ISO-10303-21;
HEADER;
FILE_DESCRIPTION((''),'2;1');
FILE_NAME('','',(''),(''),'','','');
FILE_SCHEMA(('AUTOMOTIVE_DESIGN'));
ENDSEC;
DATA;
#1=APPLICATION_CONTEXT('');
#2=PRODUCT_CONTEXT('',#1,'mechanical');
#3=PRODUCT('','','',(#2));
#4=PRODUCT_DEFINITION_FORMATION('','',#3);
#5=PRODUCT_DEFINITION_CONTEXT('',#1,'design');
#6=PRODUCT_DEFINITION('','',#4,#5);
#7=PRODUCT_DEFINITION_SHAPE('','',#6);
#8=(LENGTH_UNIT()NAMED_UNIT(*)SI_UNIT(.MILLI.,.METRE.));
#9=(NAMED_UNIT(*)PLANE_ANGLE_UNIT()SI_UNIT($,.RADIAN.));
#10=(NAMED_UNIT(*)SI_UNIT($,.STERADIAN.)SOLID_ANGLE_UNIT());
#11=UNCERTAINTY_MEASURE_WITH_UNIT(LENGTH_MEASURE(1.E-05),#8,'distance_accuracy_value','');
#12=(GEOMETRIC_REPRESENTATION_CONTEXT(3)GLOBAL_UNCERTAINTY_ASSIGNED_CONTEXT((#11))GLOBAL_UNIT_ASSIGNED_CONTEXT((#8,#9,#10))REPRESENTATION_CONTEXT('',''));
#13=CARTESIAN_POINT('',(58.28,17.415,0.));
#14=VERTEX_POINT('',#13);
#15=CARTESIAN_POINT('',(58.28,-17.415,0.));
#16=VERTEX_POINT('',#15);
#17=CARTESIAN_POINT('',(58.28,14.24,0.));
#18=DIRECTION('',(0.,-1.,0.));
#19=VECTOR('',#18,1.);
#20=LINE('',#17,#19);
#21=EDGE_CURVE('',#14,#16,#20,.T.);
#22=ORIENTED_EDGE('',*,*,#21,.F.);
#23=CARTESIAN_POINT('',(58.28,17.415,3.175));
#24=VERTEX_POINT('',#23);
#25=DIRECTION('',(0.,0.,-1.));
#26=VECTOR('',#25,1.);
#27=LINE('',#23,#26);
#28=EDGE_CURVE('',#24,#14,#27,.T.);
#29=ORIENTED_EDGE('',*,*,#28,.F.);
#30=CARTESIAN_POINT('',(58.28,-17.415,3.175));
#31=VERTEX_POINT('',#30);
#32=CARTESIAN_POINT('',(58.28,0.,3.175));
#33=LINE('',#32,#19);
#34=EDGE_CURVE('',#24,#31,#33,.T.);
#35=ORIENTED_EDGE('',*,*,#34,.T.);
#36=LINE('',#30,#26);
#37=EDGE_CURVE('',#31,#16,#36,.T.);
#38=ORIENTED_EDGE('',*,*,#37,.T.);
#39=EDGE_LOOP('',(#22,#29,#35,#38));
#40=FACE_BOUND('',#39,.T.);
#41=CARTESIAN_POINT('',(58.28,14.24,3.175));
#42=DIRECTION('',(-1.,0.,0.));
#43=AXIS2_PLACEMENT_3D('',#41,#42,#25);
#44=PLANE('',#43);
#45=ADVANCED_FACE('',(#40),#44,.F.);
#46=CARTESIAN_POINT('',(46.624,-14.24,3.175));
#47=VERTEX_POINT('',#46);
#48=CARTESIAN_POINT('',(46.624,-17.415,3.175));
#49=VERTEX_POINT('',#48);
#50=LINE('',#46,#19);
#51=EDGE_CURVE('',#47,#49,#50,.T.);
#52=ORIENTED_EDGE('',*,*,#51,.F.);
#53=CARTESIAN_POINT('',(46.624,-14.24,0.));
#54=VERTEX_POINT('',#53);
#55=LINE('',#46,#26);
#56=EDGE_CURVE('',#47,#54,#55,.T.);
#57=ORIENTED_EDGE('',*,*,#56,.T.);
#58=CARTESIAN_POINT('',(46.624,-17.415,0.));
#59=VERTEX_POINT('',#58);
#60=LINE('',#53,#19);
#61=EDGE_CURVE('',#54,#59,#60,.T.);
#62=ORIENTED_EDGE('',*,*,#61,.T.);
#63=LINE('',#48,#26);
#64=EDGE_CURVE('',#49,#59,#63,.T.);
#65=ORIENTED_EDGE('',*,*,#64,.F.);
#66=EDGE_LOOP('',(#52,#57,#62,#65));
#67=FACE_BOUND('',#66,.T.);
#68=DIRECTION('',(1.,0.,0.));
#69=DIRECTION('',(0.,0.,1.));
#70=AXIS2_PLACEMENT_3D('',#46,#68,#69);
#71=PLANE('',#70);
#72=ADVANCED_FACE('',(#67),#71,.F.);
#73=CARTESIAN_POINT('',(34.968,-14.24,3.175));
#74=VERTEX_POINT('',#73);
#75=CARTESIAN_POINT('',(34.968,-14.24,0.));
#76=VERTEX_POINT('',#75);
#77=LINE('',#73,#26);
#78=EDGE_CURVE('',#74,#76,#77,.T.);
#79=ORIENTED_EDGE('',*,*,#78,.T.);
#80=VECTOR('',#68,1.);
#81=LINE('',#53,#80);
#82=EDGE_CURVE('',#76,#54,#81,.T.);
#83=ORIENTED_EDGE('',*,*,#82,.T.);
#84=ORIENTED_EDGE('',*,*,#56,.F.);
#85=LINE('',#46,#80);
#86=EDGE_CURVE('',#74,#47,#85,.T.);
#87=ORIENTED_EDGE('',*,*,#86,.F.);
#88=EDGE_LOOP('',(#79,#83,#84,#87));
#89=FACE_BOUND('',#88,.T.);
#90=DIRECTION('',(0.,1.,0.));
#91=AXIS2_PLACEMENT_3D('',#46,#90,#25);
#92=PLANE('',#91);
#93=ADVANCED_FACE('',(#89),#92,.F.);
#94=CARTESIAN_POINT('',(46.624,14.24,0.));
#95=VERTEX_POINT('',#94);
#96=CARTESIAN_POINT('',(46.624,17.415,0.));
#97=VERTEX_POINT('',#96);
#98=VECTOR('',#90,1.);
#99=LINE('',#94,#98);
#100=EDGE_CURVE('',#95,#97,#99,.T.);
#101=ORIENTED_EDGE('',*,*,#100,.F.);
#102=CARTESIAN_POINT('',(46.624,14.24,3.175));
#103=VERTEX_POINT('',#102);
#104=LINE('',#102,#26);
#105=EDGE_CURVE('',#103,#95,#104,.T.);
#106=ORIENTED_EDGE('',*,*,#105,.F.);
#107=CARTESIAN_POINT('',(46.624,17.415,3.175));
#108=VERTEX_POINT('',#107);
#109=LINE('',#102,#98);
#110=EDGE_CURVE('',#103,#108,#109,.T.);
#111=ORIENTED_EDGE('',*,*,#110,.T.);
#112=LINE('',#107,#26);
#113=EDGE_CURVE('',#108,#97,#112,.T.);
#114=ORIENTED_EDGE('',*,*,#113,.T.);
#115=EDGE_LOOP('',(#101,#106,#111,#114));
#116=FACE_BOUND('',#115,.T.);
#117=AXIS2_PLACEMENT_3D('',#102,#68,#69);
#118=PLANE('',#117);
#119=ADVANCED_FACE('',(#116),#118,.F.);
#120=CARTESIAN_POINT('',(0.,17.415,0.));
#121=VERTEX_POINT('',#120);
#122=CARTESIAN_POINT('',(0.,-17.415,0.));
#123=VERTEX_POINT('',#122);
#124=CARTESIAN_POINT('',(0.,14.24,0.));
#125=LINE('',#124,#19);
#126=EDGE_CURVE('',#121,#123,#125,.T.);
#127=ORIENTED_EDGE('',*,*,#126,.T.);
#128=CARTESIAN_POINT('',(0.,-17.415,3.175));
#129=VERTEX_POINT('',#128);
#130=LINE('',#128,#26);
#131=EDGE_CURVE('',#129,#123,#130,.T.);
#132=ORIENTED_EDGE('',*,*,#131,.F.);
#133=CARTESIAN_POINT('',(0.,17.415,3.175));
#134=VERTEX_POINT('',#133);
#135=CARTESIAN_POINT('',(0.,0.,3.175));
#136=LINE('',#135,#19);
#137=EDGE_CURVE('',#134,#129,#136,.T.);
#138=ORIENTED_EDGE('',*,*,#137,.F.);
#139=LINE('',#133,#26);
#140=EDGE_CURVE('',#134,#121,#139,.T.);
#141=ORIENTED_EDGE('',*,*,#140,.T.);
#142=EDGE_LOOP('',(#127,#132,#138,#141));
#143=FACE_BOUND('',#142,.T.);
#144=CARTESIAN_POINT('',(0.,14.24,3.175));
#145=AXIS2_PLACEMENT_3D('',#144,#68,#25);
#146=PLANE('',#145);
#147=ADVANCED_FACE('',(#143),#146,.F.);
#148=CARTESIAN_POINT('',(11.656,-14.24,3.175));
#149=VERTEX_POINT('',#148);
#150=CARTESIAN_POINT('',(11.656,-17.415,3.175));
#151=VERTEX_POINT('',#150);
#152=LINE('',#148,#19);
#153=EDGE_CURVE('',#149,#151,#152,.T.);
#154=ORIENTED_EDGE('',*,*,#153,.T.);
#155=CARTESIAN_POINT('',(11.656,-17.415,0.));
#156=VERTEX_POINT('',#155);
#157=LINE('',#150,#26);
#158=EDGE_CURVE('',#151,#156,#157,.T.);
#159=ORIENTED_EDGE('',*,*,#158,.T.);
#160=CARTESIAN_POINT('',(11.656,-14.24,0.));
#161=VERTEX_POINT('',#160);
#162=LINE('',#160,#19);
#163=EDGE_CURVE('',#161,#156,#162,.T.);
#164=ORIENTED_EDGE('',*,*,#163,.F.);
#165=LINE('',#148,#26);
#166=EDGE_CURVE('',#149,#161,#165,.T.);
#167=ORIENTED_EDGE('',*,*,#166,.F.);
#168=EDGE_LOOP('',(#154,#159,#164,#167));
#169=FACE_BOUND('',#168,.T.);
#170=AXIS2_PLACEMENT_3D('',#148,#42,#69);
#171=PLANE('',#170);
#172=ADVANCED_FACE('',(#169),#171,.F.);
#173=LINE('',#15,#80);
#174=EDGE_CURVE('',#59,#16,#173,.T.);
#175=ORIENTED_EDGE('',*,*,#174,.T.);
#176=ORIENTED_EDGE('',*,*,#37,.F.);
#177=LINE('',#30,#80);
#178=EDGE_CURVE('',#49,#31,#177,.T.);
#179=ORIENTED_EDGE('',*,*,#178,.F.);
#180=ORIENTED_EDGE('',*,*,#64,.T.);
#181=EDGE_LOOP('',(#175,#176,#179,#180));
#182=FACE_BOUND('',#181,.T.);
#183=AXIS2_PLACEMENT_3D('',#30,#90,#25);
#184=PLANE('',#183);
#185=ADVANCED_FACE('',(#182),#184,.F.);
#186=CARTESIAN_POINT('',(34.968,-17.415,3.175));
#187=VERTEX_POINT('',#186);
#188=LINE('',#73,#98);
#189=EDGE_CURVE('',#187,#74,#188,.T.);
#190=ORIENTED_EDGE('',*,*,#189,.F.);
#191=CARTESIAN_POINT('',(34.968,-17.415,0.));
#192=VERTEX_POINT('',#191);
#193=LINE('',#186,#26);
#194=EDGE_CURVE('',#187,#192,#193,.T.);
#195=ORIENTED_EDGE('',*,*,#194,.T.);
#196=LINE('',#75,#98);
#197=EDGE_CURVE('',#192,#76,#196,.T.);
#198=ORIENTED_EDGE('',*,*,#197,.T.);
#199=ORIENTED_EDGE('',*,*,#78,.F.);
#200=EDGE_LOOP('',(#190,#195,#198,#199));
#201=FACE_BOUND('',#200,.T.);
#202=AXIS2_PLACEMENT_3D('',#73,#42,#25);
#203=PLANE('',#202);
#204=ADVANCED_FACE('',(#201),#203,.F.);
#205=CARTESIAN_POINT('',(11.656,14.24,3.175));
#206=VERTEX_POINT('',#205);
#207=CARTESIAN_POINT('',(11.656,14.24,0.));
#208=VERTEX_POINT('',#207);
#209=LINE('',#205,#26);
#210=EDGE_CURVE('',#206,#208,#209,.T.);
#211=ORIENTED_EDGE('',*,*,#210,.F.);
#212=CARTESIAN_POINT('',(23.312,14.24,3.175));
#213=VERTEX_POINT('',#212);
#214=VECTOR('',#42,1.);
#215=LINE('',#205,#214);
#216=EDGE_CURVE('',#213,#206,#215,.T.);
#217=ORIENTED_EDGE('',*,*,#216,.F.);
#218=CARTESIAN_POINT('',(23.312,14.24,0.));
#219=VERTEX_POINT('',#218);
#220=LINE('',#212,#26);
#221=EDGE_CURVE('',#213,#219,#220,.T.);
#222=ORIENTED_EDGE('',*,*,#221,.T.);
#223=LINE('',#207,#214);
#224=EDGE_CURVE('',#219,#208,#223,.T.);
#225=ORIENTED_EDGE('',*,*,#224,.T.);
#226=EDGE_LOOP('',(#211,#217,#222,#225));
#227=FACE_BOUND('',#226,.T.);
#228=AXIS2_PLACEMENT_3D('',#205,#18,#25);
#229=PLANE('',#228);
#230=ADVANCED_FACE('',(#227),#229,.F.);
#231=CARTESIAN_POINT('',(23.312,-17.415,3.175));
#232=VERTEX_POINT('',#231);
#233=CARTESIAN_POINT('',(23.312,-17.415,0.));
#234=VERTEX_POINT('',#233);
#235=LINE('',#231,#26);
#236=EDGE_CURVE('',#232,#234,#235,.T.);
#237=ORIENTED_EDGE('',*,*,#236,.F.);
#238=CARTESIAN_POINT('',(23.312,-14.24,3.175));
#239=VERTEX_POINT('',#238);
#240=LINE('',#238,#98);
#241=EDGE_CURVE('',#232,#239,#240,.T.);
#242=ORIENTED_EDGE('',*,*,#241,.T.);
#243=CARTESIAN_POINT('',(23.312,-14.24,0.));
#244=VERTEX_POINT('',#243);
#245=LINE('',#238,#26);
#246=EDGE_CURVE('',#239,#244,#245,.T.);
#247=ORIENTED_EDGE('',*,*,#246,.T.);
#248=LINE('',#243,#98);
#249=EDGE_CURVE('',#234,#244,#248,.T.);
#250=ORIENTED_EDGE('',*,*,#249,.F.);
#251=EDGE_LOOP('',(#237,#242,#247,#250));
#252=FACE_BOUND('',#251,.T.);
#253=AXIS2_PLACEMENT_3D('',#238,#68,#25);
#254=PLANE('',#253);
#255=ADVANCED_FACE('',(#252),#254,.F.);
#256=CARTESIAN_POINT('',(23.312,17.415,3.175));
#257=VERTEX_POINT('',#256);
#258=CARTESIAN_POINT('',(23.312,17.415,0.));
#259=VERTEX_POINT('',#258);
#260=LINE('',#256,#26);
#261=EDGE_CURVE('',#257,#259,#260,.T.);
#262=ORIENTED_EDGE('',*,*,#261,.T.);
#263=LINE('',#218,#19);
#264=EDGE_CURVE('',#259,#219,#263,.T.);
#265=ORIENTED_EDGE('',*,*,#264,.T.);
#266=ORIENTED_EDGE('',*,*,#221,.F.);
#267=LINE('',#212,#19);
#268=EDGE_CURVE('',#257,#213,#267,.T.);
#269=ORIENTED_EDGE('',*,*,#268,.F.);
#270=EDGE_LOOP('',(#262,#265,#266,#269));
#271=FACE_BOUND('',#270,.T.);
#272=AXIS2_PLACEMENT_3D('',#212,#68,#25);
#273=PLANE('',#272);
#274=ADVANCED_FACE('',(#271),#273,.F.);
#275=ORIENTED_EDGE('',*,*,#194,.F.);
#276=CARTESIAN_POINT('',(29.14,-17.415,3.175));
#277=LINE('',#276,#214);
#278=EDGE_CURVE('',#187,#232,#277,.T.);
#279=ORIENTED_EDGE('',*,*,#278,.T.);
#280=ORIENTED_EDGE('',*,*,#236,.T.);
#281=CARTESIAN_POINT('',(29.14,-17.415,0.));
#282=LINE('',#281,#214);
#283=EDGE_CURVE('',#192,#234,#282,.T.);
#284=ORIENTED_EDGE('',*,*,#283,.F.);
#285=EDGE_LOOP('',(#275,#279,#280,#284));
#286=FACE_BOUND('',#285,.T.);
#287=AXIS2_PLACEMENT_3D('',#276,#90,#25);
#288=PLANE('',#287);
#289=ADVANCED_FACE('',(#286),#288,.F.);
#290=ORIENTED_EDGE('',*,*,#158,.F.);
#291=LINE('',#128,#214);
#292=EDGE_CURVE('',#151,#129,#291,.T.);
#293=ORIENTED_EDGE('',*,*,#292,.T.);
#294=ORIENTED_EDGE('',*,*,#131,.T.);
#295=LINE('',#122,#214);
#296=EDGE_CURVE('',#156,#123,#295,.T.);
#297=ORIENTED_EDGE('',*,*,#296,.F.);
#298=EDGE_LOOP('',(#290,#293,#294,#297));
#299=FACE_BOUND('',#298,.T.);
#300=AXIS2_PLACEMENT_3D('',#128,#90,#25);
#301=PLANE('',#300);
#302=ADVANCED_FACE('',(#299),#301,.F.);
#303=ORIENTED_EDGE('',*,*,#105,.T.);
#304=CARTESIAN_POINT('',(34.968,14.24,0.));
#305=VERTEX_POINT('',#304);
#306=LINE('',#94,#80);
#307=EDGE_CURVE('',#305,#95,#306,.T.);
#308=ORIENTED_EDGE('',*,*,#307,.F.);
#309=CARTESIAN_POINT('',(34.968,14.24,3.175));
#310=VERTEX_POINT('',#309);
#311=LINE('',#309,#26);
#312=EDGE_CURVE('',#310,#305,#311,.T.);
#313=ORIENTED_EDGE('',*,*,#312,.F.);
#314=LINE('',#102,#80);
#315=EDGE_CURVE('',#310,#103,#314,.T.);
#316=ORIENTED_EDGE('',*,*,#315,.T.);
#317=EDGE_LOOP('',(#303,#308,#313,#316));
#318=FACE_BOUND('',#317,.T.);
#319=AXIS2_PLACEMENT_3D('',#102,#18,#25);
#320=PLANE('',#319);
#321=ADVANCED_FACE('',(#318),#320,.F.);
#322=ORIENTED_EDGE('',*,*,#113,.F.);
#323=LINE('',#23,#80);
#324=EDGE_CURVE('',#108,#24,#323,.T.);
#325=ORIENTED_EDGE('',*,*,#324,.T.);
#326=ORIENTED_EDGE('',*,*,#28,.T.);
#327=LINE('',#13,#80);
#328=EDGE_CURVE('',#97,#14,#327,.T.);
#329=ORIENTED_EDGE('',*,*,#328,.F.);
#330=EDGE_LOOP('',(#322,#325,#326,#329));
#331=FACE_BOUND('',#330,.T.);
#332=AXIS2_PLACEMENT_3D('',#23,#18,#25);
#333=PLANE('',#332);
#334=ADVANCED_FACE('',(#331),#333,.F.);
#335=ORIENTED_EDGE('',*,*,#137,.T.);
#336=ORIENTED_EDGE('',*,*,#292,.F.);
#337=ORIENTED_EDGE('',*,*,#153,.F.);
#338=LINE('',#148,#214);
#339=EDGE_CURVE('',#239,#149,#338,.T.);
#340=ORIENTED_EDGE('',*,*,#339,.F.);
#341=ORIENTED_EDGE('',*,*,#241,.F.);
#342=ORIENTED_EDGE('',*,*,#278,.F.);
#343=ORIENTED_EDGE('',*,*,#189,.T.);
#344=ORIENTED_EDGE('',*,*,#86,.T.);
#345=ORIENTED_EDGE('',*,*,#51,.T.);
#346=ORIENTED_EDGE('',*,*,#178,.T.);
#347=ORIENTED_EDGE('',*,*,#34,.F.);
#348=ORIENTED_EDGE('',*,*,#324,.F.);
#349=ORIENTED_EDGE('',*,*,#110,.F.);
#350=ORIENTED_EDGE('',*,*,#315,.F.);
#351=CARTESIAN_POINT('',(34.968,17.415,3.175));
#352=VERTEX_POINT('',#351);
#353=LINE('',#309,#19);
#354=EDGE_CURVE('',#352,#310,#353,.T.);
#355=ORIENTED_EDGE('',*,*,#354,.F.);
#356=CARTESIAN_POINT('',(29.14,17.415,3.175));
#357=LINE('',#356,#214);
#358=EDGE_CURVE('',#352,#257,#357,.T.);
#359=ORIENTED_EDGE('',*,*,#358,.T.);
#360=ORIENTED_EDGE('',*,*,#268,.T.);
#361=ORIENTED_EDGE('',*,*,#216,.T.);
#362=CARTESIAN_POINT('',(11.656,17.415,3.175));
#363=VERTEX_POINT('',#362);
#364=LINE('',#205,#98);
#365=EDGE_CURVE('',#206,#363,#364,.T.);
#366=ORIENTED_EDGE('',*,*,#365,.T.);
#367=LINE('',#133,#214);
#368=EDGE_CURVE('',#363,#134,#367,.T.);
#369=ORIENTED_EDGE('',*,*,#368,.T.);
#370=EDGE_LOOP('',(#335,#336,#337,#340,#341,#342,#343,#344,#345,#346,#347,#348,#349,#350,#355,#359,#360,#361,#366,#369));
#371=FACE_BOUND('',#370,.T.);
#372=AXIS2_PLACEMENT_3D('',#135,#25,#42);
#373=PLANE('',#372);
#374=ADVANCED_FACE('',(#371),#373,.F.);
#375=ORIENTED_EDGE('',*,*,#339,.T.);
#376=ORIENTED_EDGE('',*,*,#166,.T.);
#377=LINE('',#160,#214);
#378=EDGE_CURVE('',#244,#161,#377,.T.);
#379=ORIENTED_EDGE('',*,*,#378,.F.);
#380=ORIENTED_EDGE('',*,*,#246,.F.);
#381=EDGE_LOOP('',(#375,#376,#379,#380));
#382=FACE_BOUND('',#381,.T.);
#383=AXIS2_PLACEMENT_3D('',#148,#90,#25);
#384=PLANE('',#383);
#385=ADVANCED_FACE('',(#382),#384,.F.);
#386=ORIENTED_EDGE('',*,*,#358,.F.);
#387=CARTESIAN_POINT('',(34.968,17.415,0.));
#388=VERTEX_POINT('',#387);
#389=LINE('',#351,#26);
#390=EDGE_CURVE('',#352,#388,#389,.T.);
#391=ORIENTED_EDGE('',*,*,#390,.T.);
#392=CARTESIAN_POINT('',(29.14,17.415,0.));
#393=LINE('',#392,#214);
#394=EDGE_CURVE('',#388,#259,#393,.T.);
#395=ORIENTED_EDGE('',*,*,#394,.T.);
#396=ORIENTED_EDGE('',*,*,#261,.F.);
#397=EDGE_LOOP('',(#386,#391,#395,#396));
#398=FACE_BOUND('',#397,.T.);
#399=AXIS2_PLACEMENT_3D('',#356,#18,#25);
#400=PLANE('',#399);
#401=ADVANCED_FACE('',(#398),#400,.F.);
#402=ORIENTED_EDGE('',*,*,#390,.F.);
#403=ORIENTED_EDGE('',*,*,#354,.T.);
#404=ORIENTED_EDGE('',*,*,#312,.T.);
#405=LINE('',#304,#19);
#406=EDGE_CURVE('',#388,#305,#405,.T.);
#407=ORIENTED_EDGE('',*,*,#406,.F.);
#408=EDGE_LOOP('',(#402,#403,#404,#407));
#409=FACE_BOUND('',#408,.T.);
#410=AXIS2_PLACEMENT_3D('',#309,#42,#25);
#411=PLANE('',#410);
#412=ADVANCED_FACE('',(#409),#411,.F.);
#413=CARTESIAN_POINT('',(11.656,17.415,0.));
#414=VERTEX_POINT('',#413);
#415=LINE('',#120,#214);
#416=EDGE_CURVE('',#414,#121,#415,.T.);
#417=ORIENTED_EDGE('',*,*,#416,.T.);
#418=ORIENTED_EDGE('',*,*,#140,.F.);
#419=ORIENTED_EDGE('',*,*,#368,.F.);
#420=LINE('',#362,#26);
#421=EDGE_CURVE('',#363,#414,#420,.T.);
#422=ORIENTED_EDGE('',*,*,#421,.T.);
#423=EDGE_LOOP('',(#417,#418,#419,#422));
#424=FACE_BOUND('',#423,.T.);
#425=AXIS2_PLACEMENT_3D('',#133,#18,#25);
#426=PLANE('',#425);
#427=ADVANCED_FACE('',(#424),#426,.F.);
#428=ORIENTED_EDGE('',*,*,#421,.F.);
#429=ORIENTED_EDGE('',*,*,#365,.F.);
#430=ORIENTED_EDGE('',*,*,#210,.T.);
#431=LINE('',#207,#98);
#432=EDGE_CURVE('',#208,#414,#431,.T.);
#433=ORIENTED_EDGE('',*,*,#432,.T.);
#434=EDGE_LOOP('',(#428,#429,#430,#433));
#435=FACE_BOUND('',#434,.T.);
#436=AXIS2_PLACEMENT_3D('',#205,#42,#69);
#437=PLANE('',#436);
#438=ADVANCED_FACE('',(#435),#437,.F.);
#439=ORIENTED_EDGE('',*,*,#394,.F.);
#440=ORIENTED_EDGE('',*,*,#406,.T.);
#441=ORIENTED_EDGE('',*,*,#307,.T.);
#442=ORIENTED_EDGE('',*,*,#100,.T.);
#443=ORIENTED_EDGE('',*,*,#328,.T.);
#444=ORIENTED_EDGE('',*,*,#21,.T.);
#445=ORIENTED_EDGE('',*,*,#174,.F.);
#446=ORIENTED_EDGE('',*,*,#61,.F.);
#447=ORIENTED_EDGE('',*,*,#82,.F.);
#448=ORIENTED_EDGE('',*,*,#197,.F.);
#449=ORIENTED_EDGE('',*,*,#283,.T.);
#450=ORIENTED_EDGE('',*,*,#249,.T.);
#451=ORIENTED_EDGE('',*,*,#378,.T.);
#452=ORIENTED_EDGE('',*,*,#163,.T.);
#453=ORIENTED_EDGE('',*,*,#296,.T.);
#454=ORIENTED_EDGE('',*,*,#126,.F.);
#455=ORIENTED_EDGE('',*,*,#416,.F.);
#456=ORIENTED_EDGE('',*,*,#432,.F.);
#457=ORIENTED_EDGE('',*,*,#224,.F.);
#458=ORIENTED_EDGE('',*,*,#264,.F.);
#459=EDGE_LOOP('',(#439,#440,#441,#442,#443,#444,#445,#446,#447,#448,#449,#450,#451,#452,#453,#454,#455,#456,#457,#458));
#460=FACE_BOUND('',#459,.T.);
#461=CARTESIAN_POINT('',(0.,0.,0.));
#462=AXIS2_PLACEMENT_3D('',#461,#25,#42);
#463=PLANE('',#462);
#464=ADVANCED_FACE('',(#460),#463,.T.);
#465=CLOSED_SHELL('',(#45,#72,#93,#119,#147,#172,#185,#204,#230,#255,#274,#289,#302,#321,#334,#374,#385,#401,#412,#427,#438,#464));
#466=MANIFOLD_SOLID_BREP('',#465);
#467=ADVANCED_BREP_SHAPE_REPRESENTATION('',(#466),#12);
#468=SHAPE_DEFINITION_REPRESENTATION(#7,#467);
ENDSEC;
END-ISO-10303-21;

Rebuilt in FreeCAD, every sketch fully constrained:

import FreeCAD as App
import Part
import Sketcher
Q = App.Units.Quantity


def add_polygon(sketch, points):
    """Adds a closed chain of lines whose ends are joined by coincident constraints."""
    first, n = sketch.GeometryCount, len(points)
    for a, b in zip(points, points[1:] + points[:1]):
        sketch.addGeometry(Part.LineSegment(App.Vector(*a, 0), App.Vector(*b, 0)), False)
    for i in range(n):
        sketch.addConstraint(Sketcher.Constraint("Coincident", first + i, 2, first + (i + 1) % n, 1))

doc = App.newDocument("Part")
body = doc.addObject("PartDesign::Body", "Body")

sketch1 = body.newObject("Sketcher::SketchObject", "Sketch")
sketch1.AttachmentSupport = (doc.getObject("XY_Plane"), [""])
sketch1.MapMode = "FlatFace"
add_polygon(sketch1, [(0, 0), (29.1, 0), (29.1, 17.4), (23.3, 17.4), (23.3, 14.2), (11.7, 14.2), (11.7, 17.4), (0, 17.4)])
sketch1.addConstraint(Sketcher.Constraint("Horizontal", 0))
sketch1.addConstraint(Sketcher.Constraint("Vertical", 1))
sketch1.addConstraint(Sketcher.Constraint("Horizontal", 2))
sketch1.addConstraint(Sketcher.Constraint("Vertical", 3))
sketch1.addConstraint(Sketcher.Constraint("Horizontal", 4))
sketch1.addConstraint(Sketcher.Constraint("Vertical", 5))
sketch1.addConstraint(Sketcher.Constraint("Horizontal", 6))
sketch1.addConstraint(Sketcher.Constraint("Vertical", 7))
sketch1.addConstraint(Sketcher.Constraint("Coincident", 7, 2, -1, 1))
sketch1.addConstraint(Sketcher.Constraint("Horizontal", 2, 2, 5, 2))
sketch1.addConstraint(Sketcher.Constraint("Equal", 4, 6))
sketch1.addConstraint(Sketcher.Constraint("DistanceY", 3, 2, 3, 1, Q("0.125 in")))
sketch1.addConstraint(Sketcher.Constraint("DistanceX", 0, 1, 0, 2, Q("29.14 mm")))
sketch1.addConstraint(Sketcher.Constraint("DistanceX", 2, 2, 2, 1, Q("5.828 mm")))
sketch1.addConstraint(Sketcher.Constraint("DistanceY", 1, 1, 1, 2, Q("17.415 mm")))
pad1 = body.newObject("PartDesign::Pad", "Pad")
pad1.Profile = sketch1
pad1.Length = Q("0.125 in")
body2 = doc.addObject("PartDesign::Body", "Body001")
doc.recompute()

body2.BaseFeature = body
doc.recompute()

mirroring = doc.addObject("Part::Mirroring", "Mirroring")
mirroring.Source = body
mirroring.Base = App.Vector(0, 0, 3.175)
mirroring.Normal = App.Vector(0, 1, 0)
body3 = doc.addObject("PartDesign::Body", "Body002")
body3.BaseFeature = mirroring
boolean = body2.newObject("PartDesign::Boolean", "Boolean")
boolean.Type = "Fuse"
boolean.addObjects([body3])
doc.recompute()
body4 = doc.addObject("PartDesign::Body", "Body003")
doc.recompute()

body4.BaseFeature = body2
doc.recompute()

mirroring2 = doc.addObject("Part::Mirroring", "Mirroring001")
mirroring2.Source = body2
mirroring2.Base = App.Vector(29.14, 14.24, 3.175)
mirroring2.Normal = App.Vector(-1, 0, 0)
body5 = doc.addObject("PartDesign::Body", "Body004")
body5.BaseFeature = mirroring2
boolean2 = body4.newObject("PartDesign::Boolean", "Boolean001")
boolean2.Type = "Fuse"
boolean2.addObjects([body5])
doc.recompute()
mirroring.Visibility = False
mirroring2.Visibility = False

doc.recompute()
